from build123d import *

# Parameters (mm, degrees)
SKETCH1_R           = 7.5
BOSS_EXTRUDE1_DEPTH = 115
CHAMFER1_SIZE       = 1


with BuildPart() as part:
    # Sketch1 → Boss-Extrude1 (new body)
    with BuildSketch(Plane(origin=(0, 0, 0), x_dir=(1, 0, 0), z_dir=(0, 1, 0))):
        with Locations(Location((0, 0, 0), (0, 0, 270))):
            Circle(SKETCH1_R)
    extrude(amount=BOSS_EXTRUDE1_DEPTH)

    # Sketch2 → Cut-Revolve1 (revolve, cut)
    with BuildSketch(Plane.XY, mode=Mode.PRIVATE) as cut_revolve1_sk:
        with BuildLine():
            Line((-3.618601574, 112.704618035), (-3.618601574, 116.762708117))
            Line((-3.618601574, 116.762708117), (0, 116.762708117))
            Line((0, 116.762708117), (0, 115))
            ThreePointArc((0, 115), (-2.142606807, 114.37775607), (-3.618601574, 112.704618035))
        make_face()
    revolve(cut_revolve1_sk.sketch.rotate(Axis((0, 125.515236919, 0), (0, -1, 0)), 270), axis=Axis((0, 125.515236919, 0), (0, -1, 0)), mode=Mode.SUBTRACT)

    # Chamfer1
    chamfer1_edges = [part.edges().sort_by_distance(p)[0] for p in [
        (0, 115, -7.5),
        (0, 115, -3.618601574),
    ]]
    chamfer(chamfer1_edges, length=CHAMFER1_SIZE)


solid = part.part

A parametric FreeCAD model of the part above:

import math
import FreeCAD as App
import Part
import Sketcher
from FreeCAD import Vector


def edges_at(feature, points):
    """Names of the edges that pass closest to the given points."""
    edges = feature.Shape.Edges
    near = lambda p: min(range(len(edges)), key=lambda i: edges[i].distToShape(Part.Vertex(*p))[0])
    return sorted({f"Edge{near(p) + 1}" for p in points})

doc = App.newDocument("Part")
body = doc.addObject("PartDesign::Body", "Body")

# Sketch on XZ plane
sketch1 = body.newObject("Sketcher::SketchObject", "Sketch")
sketch1.AttachmentSupport = (doc.getObject("XZ_Plane"), [""])
sketch1.MapMode = "FlatFace"
sketch1.addGeometry(Part.Circle(Vector(0, 0, 0), Vector(0, 0, 1), 7.5), False)
sketch1.addConstraint(Sketcher.Constraint("Coincident", 0, 3, -1, 1))
sketch1.addConstraint(Sketcher.Constraint("Diameter", 0, 15.0))
pad1 = body.newObject("PartDesign::Pad", "Pad")
pad1.Profile = sketch1
pad1.Length = 115
pad1.Reversed = True

# Sketch on XY plane
sketch2 = body.newObject("Sketcher::SketchObject", "Sketch001")
sketch2.AttachmentSupport = (doc.getObject("XY_Plane"), [""])
sketch2.MapMode = "FlatFace"
sketch2.addGeometry(Part.LineSegment(Vector(-3.618602, 116.762708, 0), Vector(-3.618602, 112.704618, 0)), False)
sketch2.addGeometry(Part.ArcOfCircle(Part.Circle(Vector(0, 111, 0), Vector(0, 0, 1), 4), math.radians(90), math.radians(154.776238)), False)
sketch2.addGeometry(Part.LineSegment(Vector(0, 115, 0), Vector(0, 116.762708, 0)), False)
sketch2.addGeometry(Part.LineSegment(Vector(0, 116.762708, 0), Vector(-3.618602, 116.762708, 0)), False)
sketch2.addConstraint(Sketcher.Constraint("Coincident", 0, 2, 1, 2))
sketch2.addConstraint(Sketcher.Constraint("Coincident", 1, 1, 2, 1))
sketch2.addConstraint(Sketcher.Constraint("Coincident", 2, 2, 3, 1))
sketch2.addConstraint(Sketcher.Constraint("Coincident", 3, 2, 0, 1))
sketch2.addConstraint(Sketcher.Constraint("Vertical", 0))
sketch2.addConstraint(Sketcher.Constraint("Vertical", 2))
sketch2.addConstraint(Sketcher.Constraint("Horizontal", 3))
sketch2.addConstraint(Sketcher.Constraint("PointOnObject", 1, 3, -2))
sketch2.addConstraint(Sketcher.Constraint("PointOnObject", 1, 1, -2))
sketch2.addConstraint(Sketcher.Constraint("Radius", 1, 4.0))
sketch2.addConstraint(Sketcher.Constraint("DistanceY", -1, 1, 1, 3, 111.0))
sketch2.addConstraint(Sketcher.Constraint("DistanceX", 3, 2, 3, 1, 3.618602))
sketch2.addConstraint(Sketcher.Constraint("DistanceY", 0, 2, 0, 1, 4.05809))
groove = body.newObject("PartDesign::Groove", "Groove")
groove.Profile = sketch2
groove.ReferenceAxis = (sketch2, ["V_Axis"])
groove.Angle = 360
doc.recompute()

chamfer = body.newObject("PartDesign::Chamfer", "Chamfer")
chamfer.Base = (groove, edges_at(groove, [(0, 115, -7.5), (0, 115, -3.619)]))
chamfer.Size = 1

doc.recompute()
